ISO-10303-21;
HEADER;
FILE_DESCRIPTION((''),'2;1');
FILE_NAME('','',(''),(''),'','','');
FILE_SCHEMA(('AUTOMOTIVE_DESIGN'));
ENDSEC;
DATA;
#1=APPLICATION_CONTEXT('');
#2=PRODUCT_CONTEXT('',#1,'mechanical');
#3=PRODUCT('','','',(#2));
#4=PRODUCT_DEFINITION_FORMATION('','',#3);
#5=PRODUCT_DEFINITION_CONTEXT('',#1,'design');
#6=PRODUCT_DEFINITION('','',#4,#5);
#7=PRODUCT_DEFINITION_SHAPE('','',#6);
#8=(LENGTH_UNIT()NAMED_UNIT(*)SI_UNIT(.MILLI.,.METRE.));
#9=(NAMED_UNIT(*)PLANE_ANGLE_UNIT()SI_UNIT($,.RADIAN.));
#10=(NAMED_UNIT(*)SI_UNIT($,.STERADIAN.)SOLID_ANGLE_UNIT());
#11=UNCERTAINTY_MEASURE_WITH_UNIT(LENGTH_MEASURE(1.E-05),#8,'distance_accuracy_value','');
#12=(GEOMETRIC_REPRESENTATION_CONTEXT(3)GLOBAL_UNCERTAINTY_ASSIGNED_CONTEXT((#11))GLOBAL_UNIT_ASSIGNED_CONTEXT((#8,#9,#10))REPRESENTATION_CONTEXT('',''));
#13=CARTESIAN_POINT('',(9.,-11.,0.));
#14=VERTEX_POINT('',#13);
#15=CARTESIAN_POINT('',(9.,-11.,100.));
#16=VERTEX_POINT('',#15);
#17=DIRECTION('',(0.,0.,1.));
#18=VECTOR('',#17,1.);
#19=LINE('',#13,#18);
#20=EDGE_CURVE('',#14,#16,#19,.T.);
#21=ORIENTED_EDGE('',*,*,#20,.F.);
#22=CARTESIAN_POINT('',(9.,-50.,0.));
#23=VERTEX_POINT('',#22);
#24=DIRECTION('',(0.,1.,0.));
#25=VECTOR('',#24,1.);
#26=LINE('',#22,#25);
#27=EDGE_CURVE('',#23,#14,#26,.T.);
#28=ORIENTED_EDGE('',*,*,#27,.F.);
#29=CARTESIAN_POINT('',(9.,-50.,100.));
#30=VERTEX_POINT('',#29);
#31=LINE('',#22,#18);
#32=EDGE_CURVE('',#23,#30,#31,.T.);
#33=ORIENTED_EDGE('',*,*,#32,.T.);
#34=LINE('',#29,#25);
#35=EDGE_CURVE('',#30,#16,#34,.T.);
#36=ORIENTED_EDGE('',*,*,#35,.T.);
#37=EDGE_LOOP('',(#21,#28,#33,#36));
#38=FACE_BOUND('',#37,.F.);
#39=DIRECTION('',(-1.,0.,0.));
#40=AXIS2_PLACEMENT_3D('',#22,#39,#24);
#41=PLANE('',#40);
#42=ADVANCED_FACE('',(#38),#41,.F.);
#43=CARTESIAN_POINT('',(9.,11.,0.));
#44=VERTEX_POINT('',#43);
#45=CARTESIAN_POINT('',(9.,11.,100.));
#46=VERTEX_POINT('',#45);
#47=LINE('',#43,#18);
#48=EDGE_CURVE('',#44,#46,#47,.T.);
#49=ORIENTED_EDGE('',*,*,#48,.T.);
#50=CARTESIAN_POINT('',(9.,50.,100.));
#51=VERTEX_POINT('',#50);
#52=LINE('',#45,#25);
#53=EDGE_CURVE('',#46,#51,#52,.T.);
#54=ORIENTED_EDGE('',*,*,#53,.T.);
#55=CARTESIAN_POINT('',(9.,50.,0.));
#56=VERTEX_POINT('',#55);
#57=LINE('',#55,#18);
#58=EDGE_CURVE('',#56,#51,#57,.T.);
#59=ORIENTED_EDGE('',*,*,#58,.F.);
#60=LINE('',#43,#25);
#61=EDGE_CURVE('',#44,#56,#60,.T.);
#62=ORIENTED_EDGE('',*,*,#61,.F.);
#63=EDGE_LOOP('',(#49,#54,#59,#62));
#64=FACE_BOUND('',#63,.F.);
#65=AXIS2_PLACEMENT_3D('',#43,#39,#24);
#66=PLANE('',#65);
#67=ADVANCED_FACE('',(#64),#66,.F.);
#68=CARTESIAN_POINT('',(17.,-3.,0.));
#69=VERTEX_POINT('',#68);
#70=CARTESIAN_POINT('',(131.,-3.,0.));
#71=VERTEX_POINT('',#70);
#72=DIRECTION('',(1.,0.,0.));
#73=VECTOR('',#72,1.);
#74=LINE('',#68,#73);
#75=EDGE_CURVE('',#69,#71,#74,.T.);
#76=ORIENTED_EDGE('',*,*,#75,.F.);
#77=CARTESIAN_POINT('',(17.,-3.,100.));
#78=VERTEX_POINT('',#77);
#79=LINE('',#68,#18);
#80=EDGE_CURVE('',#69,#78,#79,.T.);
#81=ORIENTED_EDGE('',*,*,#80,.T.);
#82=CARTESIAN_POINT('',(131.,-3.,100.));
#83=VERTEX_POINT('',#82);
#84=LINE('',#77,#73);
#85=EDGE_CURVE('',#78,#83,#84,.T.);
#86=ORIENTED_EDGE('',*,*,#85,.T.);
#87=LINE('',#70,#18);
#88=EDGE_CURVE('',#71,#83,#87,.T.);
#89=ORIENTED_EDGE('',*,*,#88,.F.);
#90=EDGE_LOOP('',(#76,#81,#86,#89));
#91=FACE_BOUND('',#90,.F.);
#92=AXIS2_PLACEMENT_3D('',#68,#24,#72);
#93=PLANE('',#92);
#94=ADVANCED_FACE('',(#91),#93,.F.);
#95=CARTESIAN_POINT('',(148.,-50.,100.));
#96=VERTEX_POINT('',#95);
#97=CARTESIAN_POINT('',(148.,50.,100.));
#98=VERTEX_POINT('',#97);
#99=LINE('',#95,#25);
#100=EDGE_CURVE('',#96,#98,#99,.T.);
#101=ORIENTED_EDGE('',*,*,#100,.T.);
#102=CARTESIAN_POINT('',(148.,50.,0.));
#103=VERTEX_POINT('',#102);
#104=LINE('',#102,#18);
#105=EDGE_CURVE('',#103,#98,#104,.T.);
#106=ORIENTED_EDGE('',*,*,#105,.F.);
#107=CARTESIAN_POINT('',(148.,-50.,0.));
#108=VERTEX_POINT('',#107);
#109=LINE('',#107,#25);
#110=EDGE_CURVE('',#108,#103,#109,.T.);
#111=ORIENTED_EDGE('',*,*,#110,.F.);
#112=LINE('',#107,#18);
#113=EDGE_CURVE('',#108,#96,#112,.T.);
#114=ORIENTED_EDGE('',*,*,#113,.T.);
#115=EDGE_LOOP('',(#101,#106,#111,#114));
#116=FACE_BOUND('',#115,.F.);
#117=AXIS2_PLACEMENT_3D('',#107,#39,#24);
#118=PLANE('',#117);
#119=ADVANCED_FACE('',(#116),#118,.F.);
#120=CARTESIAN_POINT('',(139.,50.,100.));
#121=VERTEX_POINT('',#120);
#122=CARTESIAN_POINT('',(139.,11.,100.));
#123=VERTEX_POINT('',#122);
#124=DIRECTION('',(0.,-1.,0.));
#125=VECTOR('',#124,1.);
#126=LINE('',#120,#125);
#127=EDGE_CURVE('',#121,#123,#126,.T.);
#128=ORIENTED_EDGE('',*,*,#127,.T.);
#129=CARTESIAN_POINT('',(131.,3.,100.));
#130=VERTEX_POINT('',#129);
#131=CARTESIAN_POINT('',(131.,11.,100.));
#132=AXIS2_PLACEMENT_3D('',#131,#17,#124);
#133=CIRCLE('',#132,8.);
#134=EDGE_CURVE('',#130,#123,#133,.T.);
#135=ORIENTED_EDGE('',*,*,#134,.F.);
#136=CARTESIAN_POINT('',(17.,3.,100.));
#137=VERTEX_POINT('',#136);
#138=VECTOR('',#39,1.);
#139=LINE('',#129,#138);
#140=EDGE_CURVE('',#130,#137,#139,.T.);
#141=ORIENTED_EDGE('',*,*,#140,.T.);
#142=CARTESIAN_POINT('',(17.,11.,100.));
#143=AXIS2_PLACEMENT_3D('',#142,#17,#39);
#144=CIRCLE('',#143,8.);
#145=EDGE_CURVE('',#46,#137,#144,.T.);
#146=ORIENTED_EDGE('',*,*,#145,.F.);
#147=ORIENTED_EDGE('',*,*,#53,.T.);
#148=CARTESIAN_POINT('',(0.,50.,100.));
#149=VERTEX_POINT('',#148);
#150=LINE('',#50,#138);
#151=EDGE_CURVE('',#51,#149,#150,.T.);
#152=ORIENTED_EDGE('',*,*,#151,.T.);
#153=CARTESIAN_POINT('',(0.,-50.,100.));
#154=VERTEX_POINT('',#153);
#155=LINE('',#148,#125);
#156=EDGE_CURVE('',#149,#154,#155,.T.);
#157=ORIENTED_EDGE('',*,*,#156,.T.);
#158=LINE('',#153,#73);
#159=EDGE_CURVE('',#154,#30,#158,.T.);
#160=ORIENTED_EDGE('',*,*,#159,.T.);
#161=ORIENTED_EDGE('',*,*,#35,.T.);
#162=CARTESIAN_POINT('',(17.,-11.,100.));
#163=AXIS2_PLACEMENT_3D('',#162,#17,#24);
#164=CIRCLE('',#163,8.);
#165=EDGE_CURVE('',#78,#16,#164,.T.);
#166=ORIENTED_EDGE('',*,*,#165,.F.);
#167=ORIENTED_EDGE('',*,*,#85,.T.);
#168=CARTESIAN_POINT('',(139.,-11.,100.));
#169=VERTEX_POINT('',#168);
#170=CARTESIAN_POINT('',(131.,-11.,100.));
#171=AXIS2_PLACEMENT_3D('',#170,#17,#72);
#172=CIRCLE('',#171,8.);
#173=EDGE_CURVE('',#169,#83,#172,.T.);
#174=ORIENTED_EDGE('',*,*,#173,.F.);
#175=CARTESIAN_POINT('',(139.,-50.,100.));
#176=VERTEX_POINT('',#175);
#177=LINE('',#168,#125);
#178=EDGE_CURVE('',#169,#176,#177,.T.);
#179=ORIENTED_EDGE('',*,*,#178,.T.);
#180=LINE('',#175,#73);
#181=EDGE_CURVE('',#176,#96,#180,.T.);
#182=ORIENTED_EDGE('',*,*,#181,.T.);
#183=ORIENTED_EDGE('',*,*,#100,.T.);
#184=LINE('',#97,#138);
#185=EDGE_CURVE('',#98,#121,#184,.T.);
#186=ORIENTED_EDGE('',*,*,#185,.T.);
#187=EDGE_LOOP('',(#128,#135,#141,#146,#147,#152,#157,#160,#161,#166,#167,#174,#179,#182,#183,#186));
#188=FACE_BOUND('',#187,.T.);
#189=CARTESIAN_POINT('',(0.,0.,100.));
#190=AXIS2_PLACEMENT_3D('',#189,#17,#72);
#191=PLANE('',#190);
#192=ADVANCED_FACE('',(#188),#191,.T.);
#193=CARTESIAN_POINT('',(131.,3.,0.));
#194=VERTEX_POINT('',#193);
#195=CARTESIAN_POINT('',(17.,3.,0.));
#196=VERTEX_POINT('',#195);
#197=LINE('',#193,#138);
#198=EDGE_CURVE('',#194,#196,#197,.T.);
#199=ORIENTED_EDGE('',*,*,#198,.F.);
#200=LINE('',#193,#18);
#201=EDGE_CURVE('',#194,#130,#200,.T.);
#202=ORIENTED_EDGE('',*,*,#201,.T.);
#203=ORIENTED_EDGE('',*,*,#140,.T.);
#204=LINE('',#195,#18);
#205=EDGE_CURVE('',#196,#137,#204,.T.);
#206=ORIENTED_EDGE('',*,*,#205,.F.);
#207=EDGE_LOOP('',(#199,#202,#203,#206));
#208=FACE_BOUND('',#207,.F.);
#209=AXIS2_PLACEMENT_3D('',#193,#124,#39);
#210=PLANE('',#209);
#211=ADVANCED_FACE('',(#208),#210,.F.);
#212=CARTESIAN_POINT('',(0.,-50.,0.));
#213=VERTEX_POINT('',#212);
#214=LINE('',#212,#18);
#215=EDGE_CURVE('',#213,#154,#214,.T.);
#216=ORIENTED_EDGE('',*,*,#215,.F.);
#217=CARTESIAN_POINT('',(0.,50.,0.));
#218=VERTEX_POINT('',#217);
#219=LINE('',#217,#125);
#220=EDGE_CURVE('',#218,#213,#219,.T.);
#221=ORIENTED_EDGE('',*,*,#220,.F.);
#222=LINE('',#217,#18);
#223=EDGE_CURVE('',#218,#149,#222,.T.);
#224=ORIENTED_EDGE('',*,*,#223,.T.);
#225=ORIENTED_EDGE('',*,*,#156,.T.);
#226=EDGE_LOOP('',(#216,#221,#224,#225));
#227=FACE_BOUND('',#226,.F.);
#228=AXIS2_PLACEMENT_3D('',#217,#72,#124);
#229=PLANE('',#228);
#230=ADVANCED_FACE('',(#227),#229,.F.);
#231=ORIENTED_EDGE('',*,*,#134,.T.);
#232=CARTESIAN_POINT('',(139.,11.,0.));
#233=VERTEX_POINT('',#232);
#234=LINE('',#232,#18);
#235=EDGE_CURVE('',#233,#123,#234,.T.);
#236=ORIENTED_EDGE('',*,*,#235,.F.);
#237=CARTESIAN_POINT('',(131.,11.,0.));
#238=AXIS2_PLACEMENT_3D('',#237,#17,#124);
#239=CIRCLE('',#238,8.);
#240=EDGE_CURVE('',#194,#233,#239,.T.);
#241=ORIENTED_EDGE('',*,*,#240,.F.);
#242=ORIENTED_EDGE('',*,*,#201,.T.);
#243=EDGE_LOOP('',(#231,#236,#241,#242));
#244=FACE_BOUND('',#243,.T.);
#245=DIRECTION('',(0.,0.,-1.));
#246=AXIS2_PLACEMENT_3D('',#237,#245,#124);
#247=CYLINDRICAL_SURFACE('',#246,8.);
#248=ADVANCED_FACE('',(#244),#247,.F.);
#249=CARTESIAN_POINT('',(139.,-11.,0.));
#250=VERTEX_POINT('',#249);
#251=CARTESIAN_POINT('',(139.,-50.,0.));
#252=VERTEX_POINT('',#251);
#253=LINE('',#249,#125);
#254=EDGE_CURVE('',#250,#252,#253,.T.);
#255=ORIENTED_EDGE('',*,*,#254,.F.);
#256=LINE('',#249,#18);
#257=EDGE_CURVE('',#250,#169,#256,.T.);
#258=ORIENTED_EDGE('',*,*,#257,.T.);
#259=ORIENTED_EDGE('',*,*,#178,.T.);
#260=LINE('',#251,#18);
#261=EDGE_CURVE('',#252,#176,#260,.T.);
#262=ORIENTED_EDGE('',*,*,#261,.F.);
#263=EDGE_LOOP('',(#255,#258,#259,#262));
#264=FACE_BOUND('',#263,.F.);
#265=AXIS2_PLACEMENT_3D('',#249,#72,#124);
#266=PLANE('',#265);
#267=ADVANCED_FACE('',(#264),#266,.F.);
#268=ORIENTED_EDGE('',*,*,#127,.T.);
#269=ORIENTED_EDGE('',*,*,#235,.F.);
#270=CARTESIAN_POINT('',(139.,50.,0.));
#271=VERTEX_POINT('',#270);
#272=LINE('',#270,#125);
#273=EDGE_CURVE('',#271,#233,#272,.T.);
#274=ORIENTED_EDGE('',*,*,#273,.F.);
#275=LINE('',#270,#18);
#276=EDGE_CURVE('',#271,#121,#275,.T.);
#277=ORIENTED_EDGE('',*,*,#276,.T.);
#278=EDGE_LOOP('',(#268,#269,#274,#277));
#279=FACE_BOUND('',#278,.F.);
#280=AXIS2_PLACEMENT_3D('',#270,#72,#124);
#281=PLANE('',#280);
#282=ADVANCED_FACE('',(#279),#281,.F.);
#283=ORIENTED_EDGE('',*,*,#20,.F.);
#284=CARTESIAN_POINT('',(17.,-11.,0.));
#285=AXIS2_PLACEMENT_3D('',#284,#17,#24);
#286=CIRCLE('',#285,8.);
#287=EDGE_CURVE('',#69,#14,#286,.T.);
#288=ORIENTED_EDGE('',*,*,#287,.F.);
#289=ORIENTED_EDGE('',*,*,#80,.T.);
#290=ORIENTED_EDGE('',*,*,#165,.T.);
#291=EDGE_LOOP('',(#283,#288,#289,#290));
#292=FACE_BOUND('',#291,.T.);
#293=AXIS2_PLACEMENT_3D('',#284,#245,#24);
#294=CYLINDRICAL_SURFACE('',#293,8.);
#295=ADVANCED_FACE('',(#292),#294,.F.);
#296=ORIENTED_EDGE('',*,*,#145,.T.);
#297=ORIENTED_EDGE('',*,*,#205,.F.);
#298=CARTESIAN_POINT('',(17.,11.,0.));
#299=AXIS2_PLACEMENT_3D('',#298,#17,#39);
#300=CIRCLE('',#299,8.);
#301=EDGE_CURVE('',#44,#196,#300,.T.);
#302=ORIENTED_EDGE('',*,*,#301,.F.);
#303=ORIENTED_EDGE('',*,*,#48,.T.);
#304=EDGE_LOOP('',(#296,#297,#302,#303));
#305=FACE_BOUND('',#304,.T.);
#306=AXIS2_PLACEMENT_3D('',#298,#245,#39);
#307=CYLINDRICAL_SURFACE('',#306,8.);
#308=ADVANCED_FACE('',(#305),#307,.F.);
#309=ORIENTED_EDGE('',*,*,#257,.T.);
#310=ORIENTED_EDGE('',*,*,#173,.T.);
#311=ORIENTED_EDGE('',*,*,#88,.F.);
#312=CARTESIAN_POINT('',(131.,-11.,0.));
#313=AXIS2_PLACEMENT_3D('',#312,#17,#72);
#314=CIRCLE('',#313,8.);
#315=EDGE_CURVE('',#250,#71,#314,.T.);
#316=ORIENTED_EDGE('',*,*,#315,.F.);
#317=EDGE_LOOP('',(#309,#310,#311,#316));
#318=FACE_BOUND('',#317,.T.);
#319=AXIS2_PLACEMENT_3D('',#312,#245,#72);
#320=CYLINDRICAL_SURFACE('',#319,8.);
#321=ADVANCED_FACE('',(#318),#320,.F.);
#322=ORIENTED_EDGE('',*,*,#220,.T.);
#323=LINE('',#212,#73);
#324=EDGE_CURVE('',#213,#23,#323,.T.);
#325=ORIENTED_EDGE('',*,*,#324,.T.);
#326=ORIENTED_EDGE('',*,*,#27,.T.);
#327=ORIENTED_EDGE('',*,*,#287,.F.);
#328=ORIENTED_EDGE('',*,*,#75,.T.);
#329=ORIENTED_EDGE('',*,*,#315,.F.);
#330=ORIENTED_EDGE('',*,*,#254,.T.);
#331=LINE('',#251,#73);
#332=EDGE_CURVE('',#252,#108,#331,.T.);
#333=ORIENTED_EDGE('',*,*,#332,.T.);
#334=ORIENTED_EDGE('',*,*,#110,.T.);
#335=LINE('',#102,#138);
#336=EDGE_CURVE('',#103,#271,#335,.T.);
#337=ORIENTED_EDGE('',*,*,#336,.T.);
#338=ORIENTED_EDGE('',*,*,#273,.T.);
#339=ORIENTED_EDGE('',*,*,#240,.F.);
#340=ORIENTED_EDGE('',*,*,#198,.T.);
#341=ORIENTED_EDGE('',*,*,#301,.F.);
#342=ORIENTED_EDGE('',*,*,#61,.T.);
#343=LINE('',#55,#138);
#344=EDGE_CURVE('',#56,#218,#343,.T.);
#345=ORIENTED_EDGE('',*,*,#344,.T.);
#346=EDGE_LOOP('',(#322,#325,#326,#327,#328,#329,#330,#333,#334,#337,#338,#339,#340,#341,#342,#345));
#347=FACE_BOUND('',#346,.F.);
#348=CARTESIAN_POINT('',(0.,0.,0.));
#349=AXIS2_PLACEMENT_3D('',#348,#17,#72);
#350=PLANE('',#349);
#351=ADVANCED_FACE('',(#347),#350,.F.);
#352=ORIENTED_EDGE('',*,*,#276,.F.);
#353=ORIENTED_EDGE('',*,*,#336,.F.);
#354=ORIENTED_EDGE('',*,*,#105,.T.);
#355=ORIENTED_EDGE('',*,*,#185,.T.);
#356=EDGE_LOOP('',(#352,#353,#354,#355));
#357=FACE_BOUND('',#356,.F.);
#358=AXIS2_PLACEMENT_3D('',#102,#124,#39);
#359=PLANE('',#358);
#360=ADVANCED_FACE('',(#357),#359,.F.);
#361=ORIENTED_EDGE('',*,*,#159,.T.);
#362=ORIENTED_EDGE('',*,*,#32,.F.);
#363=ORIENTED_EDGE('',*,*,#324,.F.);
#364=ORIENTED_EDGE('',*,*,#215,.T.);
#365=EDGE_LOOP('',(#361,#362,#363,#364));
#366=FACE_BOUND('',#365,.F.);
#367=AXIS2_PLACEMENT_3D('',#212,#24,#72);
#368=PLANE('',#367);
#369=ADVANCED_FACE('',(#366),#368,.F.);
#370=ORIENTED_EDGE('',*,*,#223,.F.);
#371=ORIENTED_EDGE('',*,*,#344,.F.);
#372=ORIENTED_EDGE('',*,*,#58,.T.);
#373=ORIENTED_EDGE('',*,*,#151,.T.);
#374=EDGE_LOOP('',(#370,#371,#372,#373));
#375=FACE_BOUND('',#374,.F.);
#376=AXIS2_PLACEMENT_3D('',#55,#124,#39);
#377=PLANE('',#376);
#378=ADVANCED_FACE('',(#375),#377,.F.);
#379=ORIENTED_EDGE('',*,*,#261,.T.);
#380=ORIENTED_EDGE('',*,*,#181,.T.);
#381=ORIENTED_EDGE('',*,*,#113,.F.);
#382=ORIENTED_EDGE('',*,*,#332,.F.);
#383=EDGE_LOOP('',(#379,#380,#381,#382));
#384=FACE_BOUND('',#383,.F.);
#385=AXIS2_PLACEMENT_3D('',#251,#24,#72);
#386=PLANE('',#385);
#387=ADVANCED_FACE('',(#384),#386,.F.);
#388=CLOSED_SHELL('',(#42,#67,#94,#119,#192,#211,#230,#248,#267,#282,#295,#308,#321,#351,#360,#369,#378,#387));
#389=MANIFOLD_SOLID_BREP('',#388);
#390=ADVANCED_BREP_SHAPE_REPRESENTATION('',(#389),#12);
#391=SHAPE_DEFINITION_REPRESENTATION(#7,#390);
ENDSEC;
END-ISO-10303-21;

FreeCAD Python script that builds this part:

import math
import FreeCAD as App
import Part
import Sketcher
from FreeCAD import Vector

doc = App.newDocument("Part")
params = doc.addObject("Spreadsheet::Sheet", "Params")
for row, (alias, value) in enumerate([
    ("sketch1_radius", "8 mm"),
    ("sketch1_width", "9 mm"),
    ("sketch1_width2", "114 mm"),
    ("sketch1_height", "100 mm"),
    ("sketch1_height2", "39 mm"),
    ("pad1_length", "100 mm"),
], start=1):
    params.set(f"A{row}", alias)
    params.set(f"B{row}", "=" + value)
    params.setAlias(f"B{row}", alias)

body = doc.addObject("PartDesign::Body", "Body")

sketch1 = body.newObject("Sketcher::SketchObject", "Sketch")
sketch1.AttachmentSupport = (doc.getObject("XY_Plane"), [""])
sketch1.MapMode = "FlatFace"
sketch1.addGeometry([
    Part.LineSegment(Vector(9, 50, 0), Vector(0, 50, 0)),
    Part.LineSegment(Vector(0, 50, 0), Vector(0, -50, 0)),
    Part.LineSegment(Vector(0, -50, 0), Vector(9, -50, 0)),
    Part.LineSegment(Vector(9, -50, 0), Vector(9, -11, 0)),
    Part.ArcOfCircle(Part.Circle(Vector(17, -11, 0), Vector(0, 0, 1), 8), math.radians(90), math.radians(180)),
    Part.LineSegment(Vector(17, -3, 0), Vector(131, -3, 0)),
    Part.ArcOfCircle(Part.Circle(Vector(131, -11, 0), Vector(0, 0, 1), 8), math.radians(0), math.radians(90)),
    Part.LineSegment(Vector(139, -11, 0), Vector(139, -50, 0)),
    Part.LineSegment(Vector(139, -50, 0), Vector(148, -50, 0)),
    Part.LineSegment(Vector(148, -50, 0), Vector(148, 50, 0)),
    Part.LineSegment(Vector(148, 50, 0), Vector(139, 50, 0)),
    Part.LineSegment(Vector(139, 50, 0), Vector(139, 11, 0)),
    Part.ArcOfCircle(Part.Circle(Vector(131, 11, 0), Vector(0, 0, 1), 8), math.radians(-90), math.radians(0)),
    Part.LineSegment(Vector(131, 3, 0), Vector(17, 3, 0)),
    Part.ArcOfCircle(Part.Circle(Vector(17, 11, 0), Vector(0, 0, 1), 8), math.radians(180), math.radians(270)),
    Part.LineSegment(Vector(9, 11, 0), Vector(9, 50, 0)),
], False)
sketch1.addConstraint([
    Sketcher.Constraint("Coincident", 0, 2, 1, 1),
    Sketcher.Constraint("Coincident", 1, 2, 2, 1),
    Sketcher.Constraint("Coincident", 2, 2, 3, 1),
    Sketcher.Constraint("Tangent", 3, 2, 4, 2),
    Sketcher.Constraint("Tangent", 4, 1, 5, 1),
    Sketcher.Constraint("Tangent", 5, 2, 6, 2),
    Sketcher.Constraint("Tangent", 6, 1, 7, 1),
    Sketcher.Constraint("Coincident", 7, 2, 8, 1),
    Sketcher.Constraint("Coincident", 8, 2, 9, 1),
    Sketcher.Constraint("Coincident", 9, 2, 10, 1),
    Sketcher.Constraint("Coincident", 10, 2, 11, 1),
    Sketcher.Constraint("Tangent", 11, 2, 12, 2),
    Sketcher.Constraint("Tangent", 12, 1, 13, 1),
    Sketcher.Constraint("Tangent", 13, 2, 14, 2),
    Sketcher.Constraint("Tangent", 14, 1, 15, 1),
    Sketcher.Constraint("Coincident", 15, 2, 0, 1),
    Sketcher.Constraint("Horizontal", 0),
    Sketcher.Constraint("Vertical", 1),
    Sketcher.Constraint("Horizontal", 2),
    Sketcher.Constraint("Vertical", 3),
    Sketcher.Constraint("Horizontal", 5),
    Sketcher.Constraint("Vertical", 7),
    Sketcher.Constraint("Horizontal", 8),
    Sketcher.Constraint("Vertical", 9),
    Sketcher.Constraint("Horizontal", 10),
    Sketcher.Constraint("Vertical", 11),
    Sketcher.Constraint("Horizontal", 13),
    Sketcher.Constraint("Vertical", 15),
    Sketcher.Constraint("Equal", 4, 6),
    Sketcher.Constraint("Equal", 6, 12),
    Sketcher.Constraint("Equal", 12, 14),
    Sketcher.Constraint("Symmetric", 0, 2, 1, 2, -1, 1),
    Sketcher.Constraint("Symmetric", 6, 3, 12, 3, -1),
    Sketcher.Constraint("Horizontal", 2, 2, 7, 2),
    Sketcher.Constraint("Horizontal", 0, 2, 9, 2),
    Sketcher.Constraint("Vertical", 4, 3, 14, 3),
    Sketcher.Constraint("Equal", 2, 8),
    Sketcher.Constraint("Radius", 4, 8.0),
    Sketcher.Constraint("DistanceX", 0, 2, 0, 1, 9.0),
    Sketcher.Constraint("DistanceX", 5, 1, 5, 2, 114.0),
    Sketcher.Constraint("DistanceY", 1, 2, 1, 1, 100.0),
    Sketcher.Constraint("DistanceY", 3, 1, 3, 2, 39.0),
])
sketch1.setExpression("Constraints[37]", "Params.sketch1_radius")
sketch1.setExpression("Constraints[38]", "Params.sketch1_width")
sketch1.setExpression("Constraints[39]", "Params.sketch1_width2")
sketch1.setExpression("Constraints[40]", "Params.sketch1_height")
sketch1.setExpression("Constraints[41]", "Params.sketch1_height2")
pad1 = body.newObject("PartDesign::Pad", "Pad")
pad1.Profile = sketch1
pad1.setExpression("Length", "Params.pad1_length")

doc.recompute()
